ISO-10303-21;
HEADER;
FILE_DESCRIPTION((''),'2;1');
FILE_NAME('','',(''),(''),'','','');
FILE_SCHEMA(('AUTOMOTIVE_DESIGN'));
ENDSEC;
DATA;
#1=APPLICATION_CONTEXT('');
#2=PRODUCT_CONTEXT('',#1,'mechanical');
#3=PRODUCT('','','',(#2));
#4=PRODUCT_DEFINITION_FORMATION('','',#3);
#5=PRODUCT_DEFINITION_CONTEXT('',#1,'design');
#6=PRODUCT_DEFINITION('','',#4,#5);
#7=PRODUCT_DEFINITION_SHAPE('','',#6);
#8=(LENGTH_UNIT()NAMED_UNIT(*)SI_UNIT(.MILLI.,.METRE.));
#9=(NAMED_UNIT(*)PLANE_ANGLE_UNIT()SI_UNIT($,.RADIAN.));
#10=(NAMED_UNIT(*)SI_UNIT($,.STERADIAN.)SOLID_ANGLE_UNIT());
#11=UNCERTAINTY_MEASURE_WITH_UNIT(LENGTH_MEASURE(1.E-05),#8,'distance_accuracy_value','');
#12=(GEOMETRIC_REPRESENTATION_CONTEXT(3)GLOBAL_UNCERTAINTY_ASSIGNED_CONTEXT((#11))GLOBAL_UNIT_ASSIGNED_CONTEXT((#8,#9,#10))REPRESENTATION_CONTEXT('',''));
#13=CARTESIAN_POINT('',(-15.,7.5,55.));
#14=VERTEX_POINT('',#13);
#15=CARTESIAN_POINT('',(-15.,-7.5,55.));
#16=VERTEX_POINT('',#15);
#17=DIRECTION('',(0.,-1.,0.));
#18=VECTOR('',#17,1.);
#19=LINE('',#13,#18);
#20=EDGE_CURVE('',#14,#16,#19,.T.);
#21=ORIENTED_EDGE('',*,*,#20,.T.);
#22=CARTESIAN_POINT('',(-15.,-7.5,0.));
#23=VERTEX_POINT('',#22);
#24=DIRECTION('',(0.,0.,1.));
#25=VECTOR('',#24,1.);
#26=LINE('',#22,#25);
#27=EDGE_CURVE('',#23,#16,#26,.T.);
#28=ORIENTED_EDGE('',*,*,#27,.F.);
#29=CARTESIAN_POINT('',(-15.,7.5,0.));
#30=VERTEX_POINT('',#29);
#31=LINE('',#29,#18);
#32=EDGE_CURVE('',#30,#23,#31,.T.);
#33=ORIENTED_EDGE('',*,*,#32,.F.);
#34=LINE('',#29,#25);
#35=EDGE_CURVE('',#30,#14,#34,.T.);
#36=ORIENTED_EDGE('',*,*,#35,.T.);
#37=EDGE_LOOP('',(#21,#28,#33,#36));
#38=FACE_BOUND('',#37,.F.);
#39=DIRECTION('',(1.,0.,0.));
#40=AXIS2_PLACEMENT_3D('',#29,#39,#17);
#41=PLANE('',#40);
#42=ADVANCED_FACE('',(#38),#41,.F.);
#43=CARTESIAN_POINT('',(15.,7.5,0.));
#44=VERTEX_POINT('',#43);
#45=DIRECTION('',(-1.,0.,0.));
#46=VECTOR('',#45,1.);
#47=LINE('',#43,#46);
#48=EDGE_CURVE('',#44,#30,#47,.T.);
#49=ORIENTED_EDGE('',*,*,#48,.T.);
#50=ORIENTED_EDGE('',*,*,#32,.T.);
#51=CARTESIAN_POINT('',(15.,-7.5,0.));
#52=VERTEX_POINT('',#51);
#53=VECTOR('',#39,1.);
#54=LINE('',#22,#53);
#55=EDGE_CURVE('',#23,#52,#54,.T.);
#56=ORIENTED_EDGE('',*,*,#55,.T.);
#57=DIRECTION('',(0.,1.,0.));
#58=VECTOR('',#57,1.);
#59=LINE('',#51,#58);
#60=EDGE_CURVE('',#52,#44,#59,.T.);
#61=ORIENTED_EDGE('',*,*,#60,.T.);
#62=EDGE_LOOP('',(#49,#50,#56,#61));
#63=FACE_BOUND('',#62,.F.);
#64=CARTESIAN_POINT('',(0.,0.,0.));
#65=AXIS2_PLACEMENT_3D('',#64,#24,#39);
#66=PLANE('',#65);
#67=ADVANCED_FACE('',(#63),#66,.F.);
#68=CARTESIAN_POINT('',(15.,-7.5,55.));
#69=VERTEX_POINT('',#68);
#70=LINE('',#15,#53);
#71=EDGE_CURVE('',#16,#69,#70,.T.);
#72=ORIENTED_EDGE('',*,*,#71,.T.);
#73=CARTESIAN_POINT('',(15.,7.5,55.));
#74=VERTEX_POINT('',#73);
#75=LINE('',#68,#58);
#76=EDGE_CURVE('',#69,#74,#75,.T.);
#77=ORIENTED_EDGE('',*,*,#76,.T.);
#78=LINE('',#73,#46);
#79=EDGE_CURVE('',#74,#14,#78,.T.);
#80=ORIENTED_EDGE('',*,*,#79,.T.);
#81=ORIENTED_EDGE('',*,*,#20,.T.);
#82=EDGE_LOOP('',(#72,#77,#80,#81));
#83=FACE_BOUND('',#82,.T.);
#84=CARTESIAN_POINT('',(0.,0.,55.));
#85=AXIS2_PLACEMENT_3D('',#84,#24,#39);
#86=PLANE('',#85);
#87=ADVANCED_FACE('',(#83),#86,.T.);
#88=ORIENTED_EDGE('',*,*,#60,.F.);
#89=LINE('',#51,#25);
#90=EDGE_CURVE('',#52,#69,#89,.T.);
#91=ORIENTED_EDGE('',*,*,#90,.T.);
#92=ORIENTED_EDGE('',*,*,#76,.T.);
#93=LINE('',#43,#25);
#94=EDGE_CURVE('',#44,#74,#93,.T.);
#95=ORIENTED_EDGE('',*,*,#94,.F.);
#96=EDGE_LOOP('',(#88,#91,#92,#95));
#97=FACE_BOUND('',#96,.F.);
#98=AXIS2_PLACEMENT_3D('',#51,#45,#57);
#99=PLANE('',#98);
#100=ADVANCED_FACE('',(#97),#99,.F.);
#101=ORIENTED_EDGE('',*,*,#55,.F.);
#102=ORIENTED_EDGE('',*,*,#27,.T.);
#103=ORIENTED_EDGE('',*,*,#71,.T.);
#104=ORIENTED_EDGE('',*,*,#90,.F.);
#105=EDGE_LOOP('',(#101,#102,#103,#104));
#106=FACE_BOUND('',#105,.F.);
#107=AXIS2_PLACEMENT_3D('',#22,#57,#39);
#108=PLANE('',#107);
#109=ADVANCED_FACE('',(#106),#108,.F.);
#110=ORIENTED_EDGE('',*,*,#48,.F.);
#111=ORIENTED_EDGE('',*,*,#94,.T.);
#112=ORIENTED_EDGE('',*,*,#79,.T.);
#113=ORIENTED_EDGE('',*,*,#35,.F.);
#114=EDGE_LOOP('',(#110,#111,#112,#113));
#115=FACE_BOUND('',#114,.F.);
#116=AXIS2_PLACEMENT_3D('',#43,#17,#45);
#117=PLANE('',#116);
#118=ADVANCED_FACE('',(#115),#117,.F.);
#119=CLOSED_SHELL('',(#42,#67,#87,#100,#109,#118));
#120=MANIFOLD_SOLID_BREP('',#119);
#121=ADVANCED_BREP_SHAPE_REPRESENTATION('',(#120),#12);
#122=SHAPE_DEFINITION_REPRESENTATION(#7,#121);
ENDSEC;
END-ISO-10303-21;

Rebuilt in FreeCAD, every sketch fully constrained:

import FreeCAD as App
import Part
import Sketcher
Q = App.Units.Quantity


def add_polygon(sketch, points):
    """Adds a closed chain of lines whose ends are joined by coincident constraints."""
    first, n = sketch.GeometryCount, len(points)
    for a, b in zip(points, points[1:] + points[:1]):
        sketch.addGeometry(Part.LineSegment(App.Vector(*a, 0), App.Vector(*b, 0)), False)
    for i in range(n):
        sketch.addConstraint(Sketcher.Constraint("Coincident", first + i, 2, first + (i + 1) % n, 1))

doc = App.newDocument("Part")
body = doc.addObject("PartDesign::Body", "Body")

# Sketch on XY plane
sketch1 = body.newObject("Sketcher::SketchObject", "Sketch")
sketch1.AttachmentSupport = (doc.getObject("XY_Plane"), [""])
sketch1.MapMode = "FlatFace"
add_polygon(sketch1, [(15, -8), (15, 8), (-15, 8), (-15, -8)])  # lines 0-3
sketch1.addConstraint([
    Sketcher.Constraint("Vertical", 0),
    Sketcher.Constraint("Horizontal", 1),
    Sketcher.Constraint("Vertical", 2),
    Sketcher.Constraint("Horizontal", 3),
    Sketcher.Constraint("Symmetric", 0, 2, 2, 2, -1, 1),
    Sketcher.Constraint("DistanceX", 1, 2, 1, 1, Q("30 mm")),
    Sketcher.Constraint("DistanceY", 0, 1, 0, 2, Q("15 mm")),
])
pad1 = body.newObject("PartDesign::Pad", "Pad")
pad1.Profile = sketch1
pad1.Length = 55

doc.recompute()
